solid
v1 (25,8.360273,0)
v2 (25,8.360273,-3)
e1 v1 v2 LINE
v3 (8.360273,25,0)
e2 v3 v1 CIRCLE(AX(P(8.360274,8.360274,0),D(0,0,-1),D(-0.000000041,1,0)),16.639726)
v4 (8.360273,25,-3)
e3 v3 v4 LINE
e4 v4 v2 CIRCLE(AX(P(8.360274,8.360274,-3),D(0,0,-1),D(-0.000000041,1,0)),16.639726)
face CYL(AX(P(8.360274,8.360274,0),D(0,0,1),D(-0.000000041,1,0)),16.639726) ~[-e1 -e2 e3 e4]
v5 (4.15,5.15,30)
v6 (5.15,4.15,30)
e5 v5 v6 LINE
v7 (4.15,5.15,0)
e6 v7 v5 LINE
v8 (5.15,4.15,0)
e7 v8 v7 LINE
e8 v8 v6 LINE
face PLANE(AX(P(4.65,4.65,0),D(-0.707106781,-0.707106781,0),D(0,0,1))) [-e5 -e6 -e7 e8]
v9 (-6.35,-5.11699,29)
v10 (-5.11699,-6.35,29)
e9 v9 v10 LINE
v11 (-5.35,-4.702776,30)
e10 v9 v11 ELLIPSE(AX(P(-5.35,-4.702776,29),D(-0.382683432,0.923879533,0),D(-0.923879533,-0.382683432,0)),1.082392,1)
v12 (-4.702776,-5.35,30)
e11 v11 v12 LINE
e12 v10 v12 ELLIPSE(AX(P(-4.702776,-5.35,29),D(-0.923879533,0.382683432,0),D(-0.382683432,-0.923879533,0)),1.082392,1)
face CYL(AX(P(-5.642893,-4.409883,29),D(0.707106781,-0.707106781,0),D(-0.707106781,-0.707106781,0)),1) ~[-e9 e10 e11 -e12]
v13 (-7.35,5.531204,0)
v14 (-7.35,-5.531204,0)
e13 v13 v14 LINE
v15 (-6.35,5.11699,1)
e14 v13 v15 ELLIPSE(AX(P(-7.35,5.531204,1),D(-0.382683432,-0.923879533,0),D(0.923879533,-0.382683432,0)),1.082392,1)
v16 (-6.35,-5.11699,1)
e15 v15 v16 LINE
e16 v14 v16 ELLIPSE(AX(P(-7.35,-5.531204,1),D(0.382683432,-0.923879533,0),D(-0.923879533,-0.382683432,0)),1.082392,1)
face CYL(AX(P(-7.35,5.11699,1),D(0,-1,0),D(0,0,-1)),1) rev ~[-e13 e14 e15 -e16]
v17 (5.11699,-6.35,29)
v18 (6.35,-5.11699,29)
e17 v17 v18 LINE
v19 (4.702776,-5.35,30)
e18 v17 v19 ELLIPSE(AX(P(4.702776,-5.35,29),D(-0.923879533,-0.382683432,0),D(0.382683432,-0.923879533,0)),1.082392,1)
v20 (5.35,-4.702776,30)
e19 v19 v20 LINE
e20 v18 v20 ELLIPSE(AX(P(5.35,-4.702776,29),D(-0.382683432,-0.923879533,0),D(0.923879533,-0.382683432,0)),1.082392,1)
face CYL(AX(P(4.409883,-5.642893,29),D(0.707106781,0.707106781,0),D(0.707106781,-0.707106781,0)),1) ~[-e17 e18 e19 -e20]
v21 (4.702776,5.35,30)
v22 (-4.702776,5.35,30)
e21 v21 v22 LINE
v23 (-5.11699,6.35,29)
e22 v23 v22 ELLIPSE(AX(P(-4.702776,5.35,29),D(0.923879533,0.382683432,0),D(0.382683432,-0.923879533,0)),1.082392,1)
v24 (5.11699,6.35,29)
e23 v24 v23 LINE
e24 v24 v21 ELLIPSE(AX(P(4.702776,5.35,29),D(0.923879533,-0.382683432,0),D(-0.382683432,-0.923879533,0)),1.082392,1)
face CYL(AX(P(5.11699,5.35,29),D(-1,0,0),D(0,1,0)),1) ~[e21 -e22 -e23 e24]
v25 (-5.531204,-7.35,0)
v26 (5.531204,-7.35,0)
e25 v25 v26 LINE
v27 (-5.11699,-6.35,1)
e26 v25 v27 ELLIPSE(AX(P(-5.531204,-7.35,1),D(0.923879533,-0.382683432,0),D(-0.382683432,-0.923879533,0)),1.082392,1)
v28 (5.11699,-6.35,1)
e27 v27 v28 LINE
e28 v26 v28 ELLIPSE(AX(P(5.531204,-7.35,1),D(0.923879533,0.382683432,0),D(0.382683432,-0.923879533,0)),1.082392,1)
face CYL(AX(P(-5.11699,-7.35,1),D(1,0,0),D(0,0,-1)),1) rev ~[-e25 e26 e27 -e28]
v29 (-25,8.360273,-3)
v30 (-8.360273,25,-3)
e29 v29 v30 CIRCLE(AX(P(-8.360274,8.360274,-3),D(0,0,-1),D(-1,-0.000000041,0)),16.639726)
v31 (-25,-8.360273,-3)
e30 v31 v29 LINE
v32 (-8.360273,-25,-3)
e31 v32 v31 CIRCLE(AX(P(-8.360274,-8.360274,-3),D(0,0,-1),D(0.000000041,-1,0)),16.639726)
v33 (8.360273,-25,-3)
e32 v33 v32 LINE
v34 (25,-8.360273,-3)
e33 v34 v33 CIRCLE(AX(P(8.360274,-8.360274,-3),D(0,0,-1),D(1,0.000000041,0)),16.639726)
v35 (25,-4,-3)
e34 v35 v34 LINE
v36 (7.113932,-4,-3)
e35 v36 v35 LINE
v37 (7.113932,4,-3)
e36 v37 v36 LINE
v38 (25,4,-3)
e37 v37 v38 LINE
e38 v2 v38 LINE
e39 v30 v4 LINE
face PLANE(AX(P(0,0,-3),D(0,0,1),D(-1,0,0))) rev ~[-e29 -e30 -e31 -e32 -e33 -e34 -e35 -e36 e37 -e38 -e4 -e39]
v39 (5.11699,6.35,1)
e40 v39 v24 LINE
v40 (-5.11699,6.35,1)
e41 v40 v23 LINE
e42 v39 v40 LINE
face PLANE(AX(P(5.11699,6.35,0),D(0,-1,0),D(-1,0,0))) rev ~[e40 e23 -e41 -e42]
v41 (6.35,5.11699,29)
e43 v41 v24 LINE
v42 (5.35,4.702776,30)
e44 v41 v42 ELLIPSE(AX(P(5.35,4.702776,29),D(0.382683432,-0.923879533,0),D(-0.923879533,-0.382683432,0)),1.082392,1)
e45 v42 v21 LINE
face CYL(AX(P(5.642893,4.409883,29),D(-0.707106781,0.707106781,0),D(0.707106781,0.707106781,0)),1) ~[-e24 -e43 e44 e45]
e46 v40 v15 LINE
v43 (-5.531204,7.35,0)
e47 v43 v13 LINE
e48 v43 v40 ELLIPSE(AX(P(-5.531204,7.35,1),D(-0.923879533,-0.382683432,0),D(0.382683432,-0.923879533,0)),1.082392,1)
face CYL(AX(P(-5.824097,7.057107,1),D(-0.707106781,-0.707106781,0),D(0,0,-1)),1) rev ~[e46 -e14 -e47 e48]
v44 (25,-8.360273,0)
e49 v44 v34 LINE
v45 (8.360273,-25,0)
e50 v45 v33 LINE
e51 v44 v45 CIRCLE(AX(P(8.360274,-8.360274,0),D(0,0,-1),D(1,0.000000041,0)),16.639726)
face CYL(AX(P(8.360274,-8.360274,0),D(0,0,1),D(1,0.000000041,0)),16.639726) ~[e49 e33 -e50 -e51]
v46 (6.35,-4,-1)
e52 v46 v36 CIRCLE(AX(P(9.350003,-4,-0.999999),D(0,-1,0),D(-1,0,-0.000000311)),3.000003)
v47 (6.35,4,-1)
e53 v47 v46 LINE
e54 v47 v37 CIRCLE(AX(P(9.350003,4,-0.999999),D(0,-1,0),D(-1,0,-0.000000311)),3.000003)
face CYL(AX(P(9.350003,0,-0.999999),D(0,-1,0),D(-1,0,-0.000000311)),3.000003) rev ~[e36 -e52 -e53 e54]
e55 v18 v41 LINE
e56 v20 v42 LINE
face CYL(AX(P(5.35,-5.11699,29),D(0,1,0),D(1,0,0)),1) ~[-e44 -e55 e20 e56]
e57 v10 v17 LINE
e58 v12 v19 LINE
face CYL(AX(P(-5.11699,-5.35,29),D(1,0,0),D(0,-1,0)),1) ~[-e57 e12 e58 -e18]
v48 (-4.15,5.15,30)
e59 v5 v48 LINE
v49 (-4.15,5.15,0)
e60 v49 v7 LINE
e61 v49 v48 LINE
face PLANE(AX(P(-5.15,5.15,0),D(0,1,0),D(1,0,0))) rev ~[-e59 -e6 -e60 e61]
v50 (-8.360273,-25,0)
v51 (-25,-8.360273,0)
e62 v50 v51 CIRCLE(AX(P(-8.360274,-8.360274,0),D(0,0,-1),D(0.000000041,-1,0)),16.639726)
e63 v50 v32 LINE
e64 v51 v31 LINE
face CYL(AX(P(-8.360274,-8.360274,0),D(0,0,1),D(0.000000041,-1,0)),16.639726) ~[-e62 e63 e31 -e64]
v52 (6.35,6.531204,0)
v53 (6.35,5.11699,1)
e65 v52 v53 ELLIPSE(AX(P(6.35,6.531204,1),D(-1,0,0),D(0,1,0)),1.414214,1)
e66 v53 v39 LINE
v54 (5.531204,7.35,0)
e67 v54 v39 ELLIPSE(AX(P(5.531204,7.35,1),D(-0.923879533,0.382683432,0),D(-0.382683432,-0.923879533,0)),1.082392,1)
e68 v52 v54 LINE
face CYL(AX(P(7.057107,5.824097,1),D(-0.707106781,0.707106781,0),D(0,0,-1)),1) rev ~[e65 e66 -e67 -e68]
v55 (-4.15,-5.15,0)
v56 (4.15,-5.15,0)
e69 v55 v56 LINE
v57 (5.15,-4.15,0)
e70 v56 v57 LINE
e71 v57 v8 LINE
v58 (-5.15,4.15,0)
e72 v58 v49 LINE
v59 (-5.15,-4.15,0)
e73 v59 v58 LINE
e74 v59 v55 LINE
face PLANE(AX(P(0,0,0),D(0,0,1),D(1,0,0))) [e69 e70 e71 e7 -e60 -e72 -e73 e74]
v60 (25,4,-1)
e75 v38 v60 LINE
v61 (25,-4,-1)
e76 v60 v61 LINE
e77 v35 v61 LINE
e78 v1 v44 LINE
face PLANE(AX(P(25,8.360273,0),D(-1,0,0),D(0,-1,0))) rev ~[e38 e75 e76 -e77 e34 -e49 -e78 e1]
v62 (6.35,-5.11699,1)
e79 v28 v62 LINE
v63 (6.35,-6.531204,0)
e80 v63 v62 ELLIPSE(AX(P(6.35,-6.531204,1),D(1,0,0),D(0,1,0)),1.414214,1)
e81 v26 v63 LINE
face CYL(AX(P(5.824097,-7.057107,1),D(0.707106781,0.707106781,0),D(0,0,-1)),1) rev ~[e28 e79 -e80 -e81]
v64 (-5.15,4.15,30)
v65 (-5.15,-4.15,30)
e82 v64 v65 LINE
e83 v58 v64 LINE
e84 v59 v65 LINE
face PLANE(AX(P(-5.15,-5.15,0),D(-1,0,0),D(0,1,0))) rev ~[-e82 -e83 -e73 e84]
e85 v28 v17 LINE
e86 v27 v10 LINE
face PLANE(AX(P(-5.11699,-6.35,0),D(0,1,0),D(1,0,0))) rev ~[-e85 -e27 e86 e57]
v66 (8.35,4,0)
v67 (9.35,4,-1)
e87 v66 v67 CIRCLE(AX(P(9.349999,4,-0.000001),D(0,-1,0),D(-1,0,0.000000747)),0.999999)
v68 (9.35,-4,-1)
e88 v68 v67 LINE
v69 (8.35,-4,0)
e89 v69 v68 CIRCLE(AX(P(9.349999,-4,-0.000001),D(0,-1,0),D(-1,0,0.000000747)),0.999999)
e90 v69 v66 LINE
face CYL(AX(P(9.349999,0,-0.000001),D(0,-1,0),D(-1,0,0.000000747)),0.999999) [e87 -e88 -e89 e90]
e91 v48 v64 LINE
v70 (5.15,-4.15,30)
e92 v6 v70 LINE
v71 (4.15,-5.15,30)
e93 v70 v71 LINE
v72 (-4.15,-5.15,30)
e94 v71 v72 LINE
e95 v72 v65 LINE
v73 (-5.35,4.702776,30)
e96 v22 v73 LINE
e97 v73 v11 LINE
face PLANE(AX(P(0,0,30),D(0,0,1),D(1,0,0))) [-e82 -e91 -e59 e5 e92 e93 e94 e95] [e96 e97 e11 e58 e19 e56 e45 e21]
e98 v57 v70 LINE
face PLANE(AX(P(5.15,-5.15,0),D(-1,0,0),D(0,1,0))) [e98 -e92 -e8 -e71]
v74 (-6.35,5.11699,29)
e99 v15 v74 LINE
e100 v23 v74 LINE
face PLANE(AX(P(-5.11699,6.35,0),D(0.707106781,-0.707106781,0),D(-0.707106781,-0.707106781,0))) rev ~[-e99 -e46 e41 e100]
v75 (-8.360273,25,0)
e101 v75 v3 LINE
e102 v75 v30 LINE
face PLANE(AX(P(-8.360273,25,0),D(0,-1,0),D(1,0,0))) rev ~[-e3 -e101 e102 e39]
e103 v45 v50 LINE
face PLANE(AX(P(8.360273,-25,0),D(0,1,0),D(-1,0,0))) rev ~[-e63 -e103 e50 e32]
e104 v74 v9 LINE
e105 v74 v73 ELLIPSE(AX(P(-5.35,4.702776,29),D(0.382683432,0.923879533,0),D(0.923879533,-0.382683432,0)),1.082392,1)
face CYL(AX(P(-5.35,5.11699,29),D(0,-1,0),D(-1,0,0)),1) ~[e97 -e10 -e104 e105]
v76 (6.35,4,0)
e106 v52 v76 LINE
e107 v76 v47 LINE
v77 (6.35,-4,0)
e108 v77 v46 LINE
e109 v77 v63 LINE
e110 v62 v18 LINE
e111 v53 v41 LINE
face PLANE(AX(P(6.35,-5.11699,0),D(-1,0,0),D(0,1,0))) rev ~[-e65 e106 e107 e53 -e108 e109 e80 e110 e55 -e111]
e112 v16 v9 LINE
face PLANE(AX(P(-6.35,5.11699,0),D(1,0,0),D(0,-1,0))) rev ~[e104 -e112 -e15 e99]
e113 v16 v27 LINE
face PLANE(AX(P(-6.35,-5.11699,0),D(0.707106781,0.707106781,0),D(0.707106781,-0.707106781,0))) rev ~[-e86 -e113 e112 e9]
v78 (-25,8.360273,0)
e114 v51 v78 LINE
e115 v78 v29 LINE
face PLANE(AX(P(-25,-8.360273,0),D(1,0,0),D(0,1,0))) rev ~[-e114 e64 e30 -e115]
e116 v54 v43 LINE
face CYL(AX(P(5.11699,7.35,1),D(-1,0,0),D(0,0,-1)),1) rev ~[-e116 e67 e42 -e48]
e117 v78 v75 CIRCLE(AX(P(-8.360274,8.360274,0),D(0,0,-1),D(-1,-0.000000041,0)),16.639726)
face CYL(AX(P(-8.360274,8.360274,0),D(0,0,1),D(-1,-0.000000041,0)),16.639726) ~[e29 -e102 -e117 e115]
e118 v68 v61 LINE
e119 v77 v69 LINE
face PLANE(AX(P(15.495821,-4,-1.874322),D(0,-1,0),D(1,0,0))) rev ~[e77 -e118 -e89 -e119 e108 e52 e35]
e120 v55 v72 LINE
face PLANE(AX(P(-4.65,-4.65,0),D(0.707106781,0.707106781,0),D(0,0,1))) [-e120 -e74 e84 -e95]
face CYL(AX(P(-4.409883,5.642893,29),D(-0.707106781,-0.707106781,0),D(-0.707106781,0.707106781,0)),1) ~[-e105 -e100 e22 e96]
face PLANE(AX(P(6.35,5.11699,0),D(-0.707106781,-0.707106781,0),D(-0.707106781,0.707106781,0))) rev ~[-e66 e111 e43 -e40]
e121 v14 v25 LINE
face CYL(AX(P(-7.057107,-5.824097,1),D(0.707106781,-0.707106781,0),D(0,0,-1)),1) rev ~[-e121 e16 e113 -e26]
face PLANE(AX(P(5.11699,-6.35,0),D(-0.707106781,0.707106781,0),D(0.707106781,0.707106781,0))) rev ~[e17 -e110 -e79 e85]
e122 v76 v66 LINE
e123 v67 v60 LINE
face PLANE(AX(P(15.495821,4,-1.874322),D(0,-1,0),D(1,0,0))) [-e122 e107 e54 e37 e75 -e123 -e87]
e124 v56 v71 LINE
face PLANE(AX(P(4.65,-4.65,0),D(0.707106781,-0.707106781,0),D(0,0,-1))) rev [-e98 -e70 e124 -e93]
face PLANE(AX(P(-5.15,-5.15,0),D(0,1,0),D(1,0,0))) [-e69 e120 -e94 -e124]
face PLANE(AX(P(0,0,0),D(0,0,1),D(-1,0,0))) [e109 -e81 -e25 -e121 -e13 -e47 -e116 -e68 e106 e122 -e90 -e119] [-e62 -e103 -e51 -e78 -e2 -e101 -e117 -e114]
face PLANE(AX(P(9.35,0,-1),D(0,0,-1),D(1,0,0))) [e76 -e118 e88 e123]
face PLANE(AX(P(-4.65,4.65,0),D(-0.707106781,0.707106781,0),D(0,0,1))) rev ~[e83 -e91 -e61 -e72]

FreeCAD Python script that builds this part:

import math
import FreeCAD as App
import Part
import Sketcher
from FreeCAD import Vector
Q = App.Units.Quantity


def edges_at(feature, points):
    """Names of the edges that pass closest to the given points."""
    edges = feature.Shape.Edges
    near = lambda p: min(range(len(edges)), key=lambda i: edges[i].distToShape(Part.Vertex(*p))[0])
    return sorted({f"Edge{near(p) + 1}" for p in points})

doc = App.newDocument("Part")
body = doc.addObject("PartDesign::Body", "Body")

sketch1 = body.newObject("Sketcher::SketchObject", "Sketch")
sketch1.AttachmentSupport = (doc.getObject("XY_Plane"), [""])
sketch1.MapMode = "FlatFace"
sketch1.addGeometry(Part.LineSegment(Vector(6.3, 0, 0), Vector(6.3, -1, 0)), False)
sketch1.addGeometry(Part.ArcOfCircle(Part.Circle(Vector(9.4, -1, 0), Vector(0, 0, 1), 3), math.radians(-180), math.radians(-138)), False)
sketch1.addGeometry(Part.LineSegment(Vector(7.1, -3, 0), Vector(25, -3, 0)), False)
sketch1.addGeometry(Part.LineSegment(Vector(25, -3, 0), Vector(25, -1, 0)), False)
sketch1.addGeometry(Part.LineSegment(Vector(25, -1, 0), Vector(9.3, -1, 0)), False)
sketch1.addGeometry(Part.ArcOfCircle(Part.Circle(Vector(9.3, 0, 0), Vector(0, 0, 1), 1), math.radians(180), math.radians(270)), False)
sketch1.addGeometry(Part.LineSegment(Vector(8.3, 0, 0), Vector(6.3, 0, 0)), False)
sketch1.addConstraint(Sketcher.Constraint("Tangent", 0, 2, 1, 1))
sketch1.addConstraint(Sketcher.Constraint("Coincident", 1, 2, 2, 1))
sketch1.addConstraint(Sketcher.Constraint("Coincident", 2, 2, 3, 1))
sketch1.addConstraint(Sketcher.Constraint("Coincident", 3, 2, 4, 1))
sketch1.addConstraint(Sketcher.Constraint("Tangent", 4, 2, 5, 2))
sketch1.addConstraint(Sketcher.Constraint("Coincident", 5, 1, 6, 1))
sketch1.addConstraint(Sketcher.Constraint("Coincident", 6, 2, 0, 1))
sketch1.addConstraint(Sketcher.Constraint("Vertical", 0))
sketch1.addConstraint(Sketcher.Constraint("Horizontal", 2))
sketch1.addConstraint(Sketcher.Constraint("Vertical", 3))
sketch1.addConstraint(Sketcher.Constraint("Horizontal", 4))
sketch1.addConstraint(Sketcher.Constraint("Horizontal", 6))
sketch1.addConstraint(Sketcher.Constraint("Coincident", 4, 2, 1, 3))
sketch1.addConstraint(Sketcher.Constraint("PointOnObject", 5, 3, -1))
sketch1.addConstraint(Sketcher.Constraint("PointOnObject", 5, 1, -1))
sketch1.addConstraint(Sketcher.Constraint("Equal", 6, 3))
sketch1.addConstraint(Sketcher.Constraint("Radius", 5, Q("0.999999 mm")))
sketch1.addConstraint(Sketcher.Constraint("DistanceX", 6, 2, 6, 1, Q("2 mm")))
sketch1.addConstraint(Sketcher.Constraint("DistanceX", -1, 1, 2, 2, Q("25 mm")))
sketch1.addConstraint(Sketcher.Constraint("DistanceX", 4, 2, 4, 1, Q("15.65 mm")))
pad1 = body.newObject("PartDesign::Pad", "Pad")
pad1.Profile = sketch1
pad1.Length = 8
pad1.Midplane = True
body2 = doc.addObject("PartDesign::Body", "Body001")
doc.recompute()

body.Placement = App.Placement(Vector(0, 0, 0), App.Rotation(Vector(1, 0, 0), 90))
boolean = body2.newObject("PartDesign::Boolean", "Boolean")
boolean.Type = "Fuse"
boolean.addObjects([body])
body3 = doc.addObject("PartDesign::Body", "Body002")

sketch2 = body3.newObject("Sketcher::SketchObject", "Sketch001")
sketch2.AttachmentSupport = (doc.getObject("XY_Plane002"), [""])
sketch2.MapMode = "FlatFace"
sketch2.addGeometry(Part.LineSegment(Vector(-5, 5, 0), Vector(-5, -5, 0)), False)
sketch2.addGeometry(Part.LineSegment(Vector(-5, -5, 0), Vector(5, -5, 0)), False)
sketch2.addGeometry(Part.LineSegment(Vector(5, -5, 0), Vector(5, 5, 0)), False)
sketch2.addGeometry(Part.LineSegment(Vector(5, 5, 0), Vector(-5, 5, 0)), False)
sketch2.addConstraint(Sketcher.Constraint("Coincident", 0, 2, 1, 1))
sketch2.addConstraint(Sketcher.Constraint("Coincident", 1, 2, 2, 1))
sketch2.addConstraint(Sketcher.Constraint("Coincident", 2, 2, 3, 1))
sketch2.addConstraint(Sketcher.Constraint("Coincident", 3, 2, 0, 1))
sketch2.addConstraint(Sketcher.Constraint("Vertical", 0))
sketch2.addConstraint(Sketcher.Constraint("Horizontal", 1))
sketch2.addConstraint(Sketcher.Constraint("Vertical", 2))
sketch2.addConstraint(Sketcher.Constraint("Horizontal", 3))
sketch2.addConstraint(Sketcher.Constraint("Symmetric", 0, 2, 2, 2, -1, 1))
sketch2.addConstraint(Sketcher.Constraint("Equal", 3, 0))
sketch2.addConstraint(Sketcher.Constraint("DistanceX", 1, 1, 1, 2, Q("10.3 mm")))
pad2 = body3.newObject("PartDesign::Pad", "Pad001")
pad2.Profile = sketch2
pad2.Length = 100
doc.recompute()

chamfer = body3.newObject("PartDesign::Chamfer", "Chamfer")
chamfer.Base = (pad2, edges_at(pad2, [
    (-5.15, -5.15, 50),
    (5.15, -5.15, 50),
    (5.15, 5.15, 50),
    (-5.15, 5.15, 50),
]))
chamfer.Size = 1
body4 = doc.addObject("PartDesign::Body", "Body003")

sketch3 = body4.newObject("Sketcher::SketchObject", "Sketch002")
sketch3.AttachmentSupport = (doc.getObject("XY_Plane003"), [""])
sketch3.MapMode = "FlatFace"
sketch3.addGeometry(Part.LineSegment(Vector(8, -25, 0), Vector(-8, -25, 0)), False)
sketch3.addGeometry(Part.ArcOfCircle(Part.Circle(Vector(-8, -8, 0), Vector(0, 0, 1), 17), math.radians(180), math.radians(270)), False)
sketch3.addGeometry(Part.LineSegment(Vector(-25, -8, 0), Vector(-25, 8, 0)), False)
sketch3.addGeometry(Part.ArcOfCircle(Part.Circle(Vector(-8, 8, 0), Vector(0, 0, 1), 17), math.radians(90), math.radians(180)), False)
sketch3.addGeometry(Part.LineSegment(Vector(-8, 25, 0), Vector(8, 25, 0)), False)
sketch3.addGeometry(Part.ArcOfCircle(Part.Circle(Vector(8, 8, 0), Vector(0, 0, 1), 17), math.radians(0), math.radians(90)), False)
sketch3.addGeometry(Part.LineSegment(Vector(25, 8, 0), Vector(25, -8, 0)), False)
sketch3.addGeometry(Part.ArcOfCircle(Part.Circle(Vector(8, -8, 0), Vector(0, 0, 1), 17), math.radians(-90), math.radians(0)), False)
sketch3.addConstraint(Sketcher.Constraint("Tangent", 0, 2, 1, 2))
sketch3.addConstraint(Sketcher.Constraint("Tangent", 1, 1, 2, 1))
sketch3.addConstraint(Sketcher.Constraint("Tangent", 2, 2, 3, 2))
sketch3.addConstraint(Sketcher.Constraint("Tangent", 3, 1, 4, 1))
sketch3.addConstraint(Sketcher.Constraint("Tangent", 4, 2, 5, 2))
sketch3.addConstraint(Sketcher.Constraint("Tangent", 5, 1, 6, 1))
sketch3.addConstraint(Sketcher.Constraint("Tangent", 6, 2, 7, 2))
sketch3.addConstraint(Sketcher.Constraint("Tangent", 7, 1, 0, 1))
sketch3.addConstraint(Sketcher.Constraint("Horizontal", 0))
sketch3.addConstraint(Sketcher.Constraint("Vertical", 2))
sketch3.addConstraint(Sketcher.Constraint("Horizontal", 4))
sketch3.addConstraint(Sketcher.Constraint("Vertical", 6))
sketch3.addConstraint(Sketcher.Constraint("Equal", 1, 3))
sketch3.addConstraint(Sketcher.Constraint("Equal", 3, 5))
sketch3.addConstraint(Sketcher.Constraint("Equal", 5, 7))
sketch3.addConstraint(Sketcher.Constraint("Symmetric", 1, 3, 5, 3, -1, 1))
sketch3.addConstraint(Sketcher.Constraint("Equal", 4, 2))
sketch3.addConstraint(Sketcher.Constraint("DistanceY", 0, 2, -1, 1, Q("25 mm")))
sketch3.addConstraint(Sketcher.Constraint("Radius", 1, Q("16.639726 mm")))
pad3 = body4.newObject("PartDesign::Pad", "Pad002")
pad3.Profile = sketch3
pad3.Length = 3
pad3.Reversed = True
body5 = doc.addObject("PartDesign::Body", "Body004")

sketch4 = body5.newObject("Sketcher::SketchObject", "Sketch003")
sketch4.AttachmentSupport = (doc.getObject("XY_Plane004"), [""])
sketch4.MapMode = "FlatFace"
sketch4.addGeometry(Part.LineSegment(Vector(-6.3, -5.1, 0), Vector(-5.1, -6.3, 0)), False)
sketch4.addGeometry(Part.LineSegment(Vector(-5.1, -6.3, 0), Vector(5.1, -6.3, 0)), False)
sketch4.addGeometry(Part.LineSegment(Vector(5.1, -6.3, 0), Vector(6.3, -5.1, 0)), False)
sketch4.addGeometry(Part.LineSegment(Vector(6.3, -5.1, 0), Vector(6.3, 5.1, 0)), False)
sketch4.addGeometry(Part.LineSegment(Vector(6.3, 5.1, 0), Vector(5.1, 6.3, 0)), False)
sketch4.addGeometry(Part.LineSegment(Vector(5.1, 6.3, 0), Vector(-5.1, 6.3, 0)), False)
sketch4.addGeometry(Part.LineSegment(Vector(-5.1, 6.3, 0), Vector(-6.3, 5.1, 0)), False)
sketch4.addGeometry(Part.LineSegment(Vector(-6.3, 5.1, 0), Vector(-6.3, -5.1, 0)), False)
sketch4.addConstraint(Sketcher.Constraint("Coincident", 0, 2, 1, 1))
sketch4.addConstraint(Sketcher.Constraint("Coincident", 1, 2, 2, 1))
sketch4.addConstraint(Sketcher.Constraint("Coincident", 2, 2, 3, 1))
sketch4.addConstraint(Sketcher.Constraint("Coincident", 3, 2, 4, 1))
sketch4.addConstraint(Sketcher.Constraint("Coincident", 4, 2, 5, 1))
sketch4.addConstraint(Sketcher.Constraint("Coincident", 5, 2, 6, 1))
sketch4.addConstraint(Sketcher.Constraint("Coincident", 6, 2, 7, 1))
sketch4.addConstraint(Sketcher.Constraint("Coincident", 7, 2, 0, 1))
sketch4.addConstraint(Sketcher.Constraint("Horizontal", 1))
sketch4.addConstraint(Sketcher.Constraint("Vertical", 3))
sketch4.addConstraint(Sketcher.Constraint("Horizontal", 5))
sketch4.addConstraint(Sketcher.Constraint("Vertical", 7))
sketch4.addConstraint(Sketcher.Constraint("Symmetric", 0, 2, 4, 2, -1, 1))
sketch4.addConstraint(Sketcher.Constraint("Symmetric", 2, 2, 6, 2, -1, 1))
sketch4.addConstraint(Sketcher.Constraint("Perpendicular", 0, 2))
sketch4.addConstraint(Sketcher.Constraint("Perpendicular", 2, 4))
sketch4.addConstraint(Sketcher.Constraint("Perpendicular", 4, 6))
sketch4.addConstraint(Sketcher.Constraint("Horizontal", 3, 2, 6, 2))
sketch4.addConstraint(Sketcher.Constraint("Vertical", 1, 2, 4, 2))
sketch4.addConstraint(Sketcher.Constraint("Equal", 5, 3))
sketch4.addConstraint(Sketcher.Constraint("DistanceY", 1, 2, 4, 2, Q("12.7 mm")))
sketch4.addConstraint(Sketcher.Constraint("DistanceX", 1, 1, 1, 2, Q("10.23398 mm")))
pad4 = body5.newObject("PartDesign::Pad", "Pad003")
pad4.Profile = sketch4
pad4.Length = 30
doc.recompute()

boolean2 = body5.newObject("PartDesign::Boolean", "Boolean001")
boolean2.Type = "Fuse"
boolean2.addObjects([body4])
doc.recompute()

boolean3 = body5.newObject("PartDesign::Boolean", "Boolean002")
boolean3.Type = "Cut"
boolean3.addObjects([body3])
doc.recompute()

boolean4 = body5.newObject("PartDesign::Boolean", "Boolean003")
boolean4.Type = "Cut"
boolean4.addObjects([body2])
doc.recompute()

fillet = body5.newObject("PartDesign::Fillet", "Fillet")
fillet.Base = (boolean4, edges_at(boolean4, [
    (-6.35, 0, 30),
    (-5.733, -5.733, 30),
    (-5.733, 5.733, 30),
    (0, -6.35, 30),
    (0, 6.35, 30),
    (5.733, -5.733, 30),
    (5.733, 5.733, 30),
    (6.35, 0, 30),
    (-6.35, 0, 0),
    (-5.733, -5.733, 0),
    (-5.733, 5.733, 0),
    (0, -6.35, 0),
    (0, 6.35, 0),
    (5.733, -5.733, 0),
    (5.733, 5.733, 0),
]))
fillet.Radius = 1

doc.recompute()
